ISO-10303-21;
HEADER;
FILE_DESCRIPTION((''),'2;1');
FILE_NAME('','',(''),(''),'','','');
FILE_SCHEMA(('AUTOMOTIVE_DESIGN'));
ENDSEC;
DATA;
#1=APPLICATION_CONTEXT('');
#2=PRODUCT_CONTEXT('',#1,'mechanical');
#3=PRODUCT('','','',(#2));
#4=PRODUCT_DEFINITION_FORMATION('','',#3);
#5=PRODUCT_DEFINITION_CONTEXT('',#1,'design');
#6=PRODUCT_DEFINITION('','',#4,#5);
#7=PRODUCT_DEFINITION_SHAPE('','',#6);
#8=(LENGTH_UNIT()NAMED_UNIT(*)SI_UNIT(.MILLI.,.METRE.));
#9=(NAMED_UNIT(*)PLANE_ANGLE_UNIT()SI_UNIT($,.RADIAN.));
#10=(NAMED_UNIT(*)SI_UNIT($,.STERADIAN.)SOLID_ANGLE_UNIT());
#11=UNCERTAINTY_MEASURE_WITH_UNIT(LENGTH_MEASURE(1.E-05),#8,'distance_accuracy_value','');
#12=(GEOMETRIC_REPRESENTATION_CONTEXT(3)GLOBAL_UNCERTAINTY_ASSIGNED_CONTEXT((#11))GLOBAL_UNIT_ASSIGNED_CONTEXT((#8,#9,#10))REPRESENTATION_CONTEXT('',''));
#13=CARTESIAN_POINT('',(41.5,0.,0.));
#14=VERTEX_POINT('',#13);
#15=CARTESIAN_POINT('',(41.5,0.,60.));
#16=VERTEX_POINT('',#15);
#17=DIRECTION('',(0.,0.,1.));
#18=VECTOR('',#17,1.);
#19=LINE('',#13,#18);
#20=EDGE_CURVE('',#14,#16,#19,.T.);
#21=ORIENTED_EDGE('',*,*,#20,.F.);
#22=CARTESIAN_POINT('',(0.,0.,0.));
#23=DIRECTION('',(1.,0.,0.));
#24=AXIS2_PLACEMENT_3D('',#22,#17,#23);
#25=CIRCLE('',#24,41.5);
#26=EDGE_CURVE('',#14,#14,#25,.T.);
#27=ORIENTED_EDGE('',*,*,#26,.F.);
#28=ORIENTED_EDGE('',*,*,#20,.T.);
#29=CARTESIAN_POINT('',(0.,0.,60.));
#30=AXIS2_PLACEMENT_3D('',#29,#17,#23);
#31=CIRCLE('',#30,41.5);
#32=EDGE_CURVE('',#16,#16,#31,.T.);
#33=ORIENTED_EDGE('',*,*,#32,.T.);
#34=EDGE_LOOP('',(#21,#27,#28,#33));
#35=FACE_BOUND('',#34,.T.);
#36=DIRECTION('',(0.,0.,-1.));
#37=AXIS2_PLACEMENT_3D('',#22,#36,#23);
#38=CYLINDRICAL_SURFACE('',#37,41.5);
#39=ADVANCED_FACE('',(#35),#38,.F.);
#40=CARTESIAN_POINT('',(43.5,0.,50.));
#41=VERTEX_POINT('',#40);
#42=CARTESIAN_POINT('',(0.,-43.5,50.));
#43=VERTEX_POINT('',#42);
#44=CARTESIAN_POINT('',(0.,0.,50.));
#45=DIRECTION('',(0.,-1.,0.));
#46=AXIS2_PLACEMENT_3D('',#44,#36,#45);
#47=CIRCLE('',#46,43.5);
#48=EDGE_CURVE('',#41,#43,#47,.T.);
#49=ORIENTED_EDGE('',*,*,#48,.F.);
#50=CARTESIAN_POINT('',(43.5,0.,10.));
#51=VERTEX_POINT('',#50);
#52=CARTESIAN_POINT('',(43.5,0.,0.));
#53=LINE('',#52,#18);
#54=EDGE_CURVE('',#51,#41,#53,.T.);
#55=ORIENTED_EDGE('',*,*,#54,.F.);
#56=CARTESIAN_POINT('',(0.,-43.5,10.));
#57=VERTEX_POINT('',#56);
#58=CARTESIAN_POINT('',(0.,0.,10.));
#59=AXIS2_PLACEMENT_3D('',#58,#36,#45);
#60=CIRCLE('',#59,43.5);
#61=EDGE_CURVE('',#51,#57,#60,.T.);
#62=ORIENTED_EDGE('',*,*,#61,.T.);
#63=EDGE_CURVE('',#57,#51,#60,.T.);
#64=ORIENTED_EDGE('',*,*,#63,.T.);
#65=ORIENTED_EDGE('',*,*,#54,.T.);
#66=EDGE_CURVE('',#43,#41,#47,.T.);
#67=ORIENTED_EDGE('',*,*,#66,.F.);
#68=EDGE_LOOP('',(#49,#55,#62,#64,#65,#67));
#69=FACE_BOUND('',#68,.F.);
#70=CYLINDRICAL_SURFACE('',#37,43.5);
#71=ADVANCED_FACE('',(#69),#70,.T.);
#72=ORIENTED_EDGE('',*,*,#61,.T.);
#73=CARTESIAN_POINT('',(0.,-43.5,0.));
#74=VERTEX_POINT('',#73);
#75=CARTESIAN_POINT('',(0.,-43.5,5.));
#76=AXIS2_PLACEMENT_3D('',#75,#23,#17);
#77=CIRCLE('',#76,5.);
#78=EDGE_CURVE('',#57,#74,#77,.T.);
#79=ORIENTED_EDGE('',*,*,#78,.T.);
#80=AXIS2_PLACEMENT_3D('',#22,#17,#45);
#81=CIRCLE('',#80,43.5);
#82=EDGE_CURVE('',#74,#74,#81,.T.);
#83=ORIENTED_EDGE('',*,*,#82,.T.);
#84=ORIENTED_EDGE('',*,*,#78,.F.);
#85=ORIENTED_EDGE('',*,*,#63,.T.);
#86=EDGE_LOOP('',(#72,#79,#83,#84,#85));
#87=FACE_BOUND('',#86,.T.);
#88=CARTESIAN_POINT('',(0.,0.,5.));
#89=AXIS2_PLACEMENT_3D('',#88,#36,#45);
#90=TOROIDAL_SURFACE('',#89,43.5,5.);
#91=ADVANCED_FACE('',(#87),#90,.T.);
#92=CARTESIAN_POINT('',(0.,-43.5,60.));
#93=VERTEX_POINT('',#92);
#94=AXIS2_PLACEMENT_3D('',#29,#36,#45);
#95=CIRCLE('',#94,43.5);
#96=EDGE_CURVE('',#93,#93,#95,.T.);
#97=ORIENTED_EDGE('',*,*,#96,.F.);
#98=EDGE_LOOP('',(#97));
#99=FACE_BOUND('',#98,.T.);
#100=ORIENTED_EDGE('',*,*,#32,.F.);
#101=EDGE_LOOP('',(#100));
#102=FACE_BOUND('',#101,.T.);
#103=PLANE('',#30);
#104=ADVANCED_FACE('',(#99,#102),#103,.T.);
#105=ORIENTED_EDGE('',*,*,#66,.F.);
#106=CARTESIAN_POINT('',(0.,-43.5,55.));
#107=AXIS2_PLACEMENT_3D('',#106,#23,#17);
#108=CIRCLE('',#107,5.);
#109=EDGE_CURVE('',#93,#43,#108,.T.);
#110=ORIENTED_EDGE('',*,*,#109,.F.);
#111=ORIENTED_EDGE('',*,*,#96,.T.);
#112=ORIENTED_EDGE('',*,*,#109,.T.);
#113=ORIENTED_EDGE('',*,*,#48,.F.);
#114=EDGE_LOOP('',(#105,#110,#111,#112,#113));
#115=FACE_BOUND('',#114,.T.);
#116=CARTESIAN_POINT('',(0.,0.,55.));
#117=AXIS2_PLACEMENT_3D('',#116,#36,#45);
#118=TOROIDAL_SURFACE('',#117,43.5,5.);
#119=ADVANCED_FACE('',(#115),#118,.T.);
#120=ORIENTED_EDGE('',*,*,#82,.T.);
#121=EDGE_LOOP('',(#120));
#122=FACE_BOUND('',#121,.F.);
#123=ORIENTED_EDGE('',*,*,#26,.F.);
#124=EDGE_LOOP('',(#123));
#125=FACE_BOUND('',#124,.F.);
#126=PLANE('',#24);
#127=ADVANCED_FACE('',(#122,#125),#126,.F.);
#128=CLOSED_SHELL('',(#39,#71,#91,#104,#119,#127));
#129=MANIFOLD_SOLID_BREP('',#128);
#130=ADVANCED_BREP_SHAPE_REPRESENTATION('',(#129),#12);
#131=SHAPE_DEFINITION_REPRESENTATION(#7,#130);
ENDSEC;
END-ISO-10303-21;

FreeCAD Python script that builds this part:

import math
import FreeCAD as App
import Part
import Sketcher

V = App.Vector
Q = App.Units.Quantity

doc = App.newDocument("Part")
body = doc.addObject("PartDesign::Body", "Body")

# Sketch on XY plane
sketch1 = body.newObject("Sketcher::SketchObject", "Sketch")
sketch1.AttachmentSupport = (doc.getObject("XY_Plane"), [""])
sketch1.MapMode = "FlatFace"
sketch1.addGeometry(Part.Circle(V(0, 0, 0), V(0, 0, 1), 43.5), False)
sketch1.addGeometry(Part.Circle(V(0, 0, 0), V(0, 0, 1), 41.5), False)
sketch1.addConstraint(Sketcher.Constraint("Coincident", 0, 3, -1, 1))
sketch1.addConstraint(Sketcher.Constraint("Coincident", 1, 3, -1, 1))
sketch1.addConstraint(Sketcher.Constraint("Diameter", 0, Q("87 mm")))
sketch1.addConstraint(Sketcher.Constraint("Diameter", 1, Q("83 mm")))
pad1 = body.newObject("PartDesign::Pad", "Pad")
pad1.Profile = sketch1
pad1.Length = 60

# Sketch on YZ plane
sketch2 = body.newObject("Sketcher::SketchObject", "Sketch001")
sketch2.AttachmentSupport = (doc.getObject("YZ_Plane"), [""])
sketch2.MapMode = "FlatFace"
sketch2.addGeometry(Part.LineSegment(V(-43.5, 0, 0), V(-43.5, 10, 0)), False)
sketch2.addGeometry(Part.ArcOfCircle(Part.Circle(V(-43.5, 5, 0), V(0, 0, 1), 5), math.radians(90), math.radians(270)), False)
sketch2.addGeometry(Part.ArcOfCircle(Part.Circle(V(-43.5, 55, 0), V(0, 0, 1), 5), math.radians(90), math.radians(270)), False)
sketch2.addGeometry(Part.LineSegment(V(-43.5, 50, 0), V(-43.5, 60, 0)), False)
sketch2.addConstraint(Sketcher.Constraint("Coincident", 0, 1, 1, 2))
sketch2.addConstraint(Sketcher.Constraint("Coincident", 1, 1, 0, 2))
sketch2.addConstraint(Sketcher.Constraint("Coincident", 2, 1, 3, 2))
sketch2.addConstraint(Sketcher.Constraint("Coincident", 3, 1, 2, 2))
sketch2.addConstraint(Sketcher.Constraint("Vertical", 0))
sketch2.addConstraint(Sketcher.Constraint("Vertical", 3))
sketch2.addConstraint(Sketcher.Constraint("Equal", 1, 2))
sketch2.addConstraint(Sketcher.Constraint("PointOnObject", 0, 1, -1))
sketch2.addConstraint(Sketcher.Constraint("Vertical", 1, 3, 2, 3))
sketch2.addConstraint(Sketcher.Constraint("Vertical", 2, 3, 0, 1))
sketch2.addConstraint(Sketcher.Constraint("Vertical", 1, 1, 2, 1))
sketch2.addConstraint(Sketcher.Constraint("Radius", 1, Q("5 mm")))
sketch2.addConstraint(Sketcher.Constraint("DistanceY", -1, 1, 2, 3, Q("55 mm")))
sketch2.addConstraint(Sketcher.Constraint("DistanceX", 1, 3, -1, 1, Q("43.5 mm")))
revolution = body.newObject("PartDesign::Revolution", "Revolution")
revolution.Profile = sketch2
revolution.ReferenceAxis = (sketch2, ["V_Axis"])
revolution.Angle = 360

doc.recompute()
